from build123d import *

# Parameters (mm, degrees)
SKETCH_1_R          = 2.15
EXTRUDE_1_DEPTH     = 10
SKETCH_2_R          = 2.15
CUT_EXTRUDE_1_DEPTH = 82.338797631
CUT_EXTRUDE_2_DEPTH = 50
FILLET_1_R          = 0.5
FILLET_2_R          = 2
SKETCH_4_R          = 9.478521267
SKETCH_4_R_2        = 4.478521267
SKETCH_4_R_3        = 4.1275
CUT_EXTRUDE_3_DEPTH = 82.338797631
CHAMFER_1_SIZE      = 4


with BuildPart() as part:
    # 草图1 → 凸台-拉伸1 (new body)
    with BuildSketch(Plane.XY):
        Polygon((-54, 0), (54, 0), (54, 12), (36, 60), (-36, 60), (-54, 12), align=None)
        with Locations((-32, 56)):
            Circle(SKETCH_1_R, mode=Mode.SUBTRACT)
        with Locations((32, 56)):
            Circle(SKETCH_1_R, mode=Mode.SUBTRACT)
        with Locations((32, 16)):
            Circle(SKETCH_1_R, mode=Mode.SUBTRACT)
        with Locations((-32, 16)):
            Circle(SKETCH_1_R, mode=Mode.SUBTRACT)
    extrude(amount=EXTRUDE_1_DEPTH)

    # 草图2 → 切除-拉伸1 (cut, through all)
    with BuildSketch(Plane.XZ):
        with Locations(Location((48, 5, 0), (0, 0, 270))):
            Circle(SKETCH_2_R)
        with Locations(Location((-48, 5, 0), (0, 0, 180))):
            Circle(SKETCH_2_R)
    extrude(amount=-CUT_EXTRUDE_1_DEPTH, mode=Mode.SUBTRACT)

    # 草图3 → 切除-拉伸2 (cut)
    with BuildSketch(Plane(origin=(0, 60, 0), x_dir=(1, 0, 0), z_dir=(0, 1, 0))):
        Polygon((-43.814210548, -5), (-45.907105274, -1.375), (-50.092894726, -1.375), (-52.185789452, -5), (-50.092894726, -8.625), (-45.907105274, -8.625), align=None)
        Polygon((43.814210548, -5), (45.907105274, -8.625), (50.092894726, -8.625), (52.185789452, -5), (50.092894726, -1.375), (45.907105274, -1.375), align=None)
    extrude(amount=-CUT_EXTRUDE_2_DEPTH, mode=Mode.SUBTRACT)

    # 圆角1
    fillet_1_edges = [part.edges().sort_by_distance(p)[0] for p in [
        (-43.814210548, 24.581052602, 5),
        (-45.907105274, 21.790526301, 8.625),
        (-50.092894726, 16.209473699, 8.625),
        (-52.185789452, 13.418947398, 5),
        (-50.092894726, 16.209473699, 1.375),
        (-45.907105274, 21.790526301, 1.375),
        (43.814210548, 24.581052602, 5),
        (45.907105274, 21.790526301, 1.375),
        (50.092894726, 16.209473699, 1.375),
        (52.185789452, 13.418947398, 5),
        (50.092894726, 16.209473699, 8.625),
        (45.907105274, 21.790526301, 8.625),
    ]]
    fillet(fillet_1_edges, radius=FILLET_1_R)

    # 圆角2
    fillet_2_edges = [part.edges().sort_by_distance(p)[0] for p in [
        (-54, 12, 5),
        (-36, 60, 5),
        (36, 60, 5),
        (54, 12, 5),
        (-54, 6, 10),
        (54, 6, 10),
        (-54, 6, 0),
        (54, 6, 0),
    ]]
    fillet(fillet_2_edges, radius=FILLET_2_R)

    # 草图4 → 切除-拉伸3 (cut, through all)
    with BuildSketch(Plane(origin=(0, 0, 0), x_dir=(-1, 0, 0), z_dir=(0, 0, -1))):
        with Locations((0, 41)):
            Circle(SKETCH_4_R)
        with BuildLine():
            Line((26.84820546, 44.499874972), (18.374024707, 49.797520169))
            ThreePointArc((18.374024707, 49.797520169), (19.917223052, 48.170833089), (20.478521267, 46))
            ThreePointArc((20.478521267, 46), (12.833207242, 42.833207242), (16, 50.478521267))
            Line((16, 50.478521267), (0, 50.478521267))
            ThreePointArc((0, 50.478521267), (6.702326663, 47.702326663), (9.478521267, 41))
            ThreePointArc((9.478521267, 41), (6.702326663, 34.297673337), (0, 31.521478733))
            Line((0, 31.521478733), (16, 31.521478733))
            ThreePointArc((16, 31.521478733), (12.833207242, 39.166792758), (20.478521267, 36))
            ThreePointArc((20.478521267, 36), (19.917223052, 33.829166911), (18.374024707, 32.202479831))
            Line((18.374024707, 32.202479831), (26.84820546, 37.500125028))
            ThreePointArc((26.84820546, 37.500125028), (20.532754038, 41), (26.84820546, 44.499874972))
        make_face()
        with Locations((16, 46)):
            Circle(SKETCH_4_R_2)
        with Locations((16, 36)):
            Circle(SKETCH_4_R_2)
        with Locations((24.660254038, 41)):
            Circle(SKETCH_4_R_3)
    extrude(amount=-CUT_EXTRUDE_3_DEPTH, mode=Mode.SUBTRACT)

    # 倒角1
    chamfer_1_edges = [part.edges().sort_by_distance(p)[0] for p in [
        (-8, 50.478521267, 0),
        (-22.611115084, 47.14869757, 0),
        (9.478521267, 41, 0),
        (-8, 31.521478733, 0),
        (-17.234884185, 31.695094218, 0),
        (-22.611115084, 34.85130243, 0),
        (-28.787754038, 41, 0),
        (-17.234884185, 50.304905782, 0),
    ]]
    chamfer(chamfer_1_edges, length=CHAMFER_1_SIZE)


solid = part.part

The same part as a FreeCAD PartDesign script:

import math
import FreeCAD as App
import Part
import Sketcher

V = App.Vector
Q = App.Units.Quantity


def edges_at(feature, points):
    """Names of the edges that pass closest to the given points."""
    edges = feature.Shape.Edges
    near = lambda p: min(range(len(edges)), key=lambda i: edges[i].distToShape(Part.Vertex(*p))[0])
    return sorted({f"Edge{near(p) + 1}" for p in points})


def add_polygon(sketch, points):
    """Adds a closed chain of lines whose ends are joined by coincident constraints."""
    first, n = sketch.GeometryCount, len(points)
    for a, b in zip(points, points[1:] + points[:1]):
        sketch.addGeometry(Part.LineSegment(App.Vector(*a, 0), App.Vector(*b, 0)), False)
    for i in range(n):
        sketch.addConstraint(Sketcher.Constraint("Coincident", first + i, 2, first + (i + 1) % n, 1))

doc = App.newDocument("Part")
params = doc.addObject("Spreadsheet::Sheet", "Params")
for row, (alias, value) in enumerate([
    ("sketch1_diameter", "4.3 mm"),
    ("sketch1_width", "108 mm"),
    ("sketch1_width2", "72 mm"),
    ("sketch1_height", "12 mm"),
    ("pad1_length", "10 mm"),
    ("sketch2_diameter", "4.3 mm"),
    ("pocket2_length", "50 mm"),
    ("fillet_radius", "0.5 mm"),
    ("fillet2_radius", "2 mm"),
    ("sketch4_width", "16 mm"),
    ("chamfer_size", "4 mm"),
], start=1):
    params.set(f"A{row}", alias)
    params.set(f"B{row}", "=" + value)
    params.setAlias(f"B{row}", alias)

body = doc.addObject("PartDesign::Body", "Body")

# Sketch on XY plane
sketch1 = body.newObject("Sketcher::SketchObject", "Sketch")
sketch1.AttachmentSupport = (doc.getObject("XY_Plane"), [""])
sketch1.MapMode = "FlatFace"
add_polygon(sketch1, [(-54, 0), (54, 0), (54, 12), (36, 60), (-36, 60), (-54, 12)])  # lines 0-5
sketch1.addGeometry(Part.Circle(V(-32, 16, 0), V(0, 0, 1), 2.1), False)  # 6
sketch1.addGeometry(Part.Circle(V(32, 16, 0), V(0, 0, 1), 2.1), False)  # 7
sketch1.addGeometry(Part.Circle(V(-32, 56, 0), V(0, 0, 1), 2.1), False)  # 8
sketch1.addGeometry(Part.Circle(V(32, 56, 0), V(0, 0, 1), 2.1), False)  # 9
sketch1.addConstraint([
    Sketcher.Constraint("Horizontal", 0),
    Sketcher.Constraint("Vertical", 1),
    Sketcher.Constraint("Horizontal", 3),
    Sketcher.Constraint("Vertical", 5),
    Sketcher.Constraint("Equal", 6, 7),
    Sketcher.Constraint("Equal", 7, 8),
    Sketcher.Constraint("Equal", 8, 9),
    Sketcher.Constraint("Symmetric", 0, 2, 5, 2, -1, 1),
    Sketcher.Constraint("Symmetric", 6, 3, 7, 3, -2),
    Sketcher.Constraint("Symmetric", 8, 3, 9, 3, -2),
    Sketcher.Constraint("Horizontal", 1, 2, 4, 2),
    Sketcher.Constraint("Vertical", 6, 3, 8, 3),
    Sketcher.Constraint("Equal", 2, 4),
    Sketcher.Constraint("Diameter", 6, 4.3),
    Sketcher.Constraint("DistanceX", 0, 1, 0, 2, 108.0),
    Sketcher.Constraint("DistanceX", 3, 2, 3, 1, 72.0),
    Sketcher.Constraint("DistanceY", 1, 1, 1, 2, 12.0),
    Sketcher.Constraint("DistanceX", 6, 3, -1, 1, 32.0),
    Sketcher.Constraint("DistanceY", -1, 1, 6, 3, 16.0),
    Sketcher.Constraint("DistanceY", -1, 1, 8, 3, 56.0),
    Sketcher.Constraint("DistanceY", -1, 1, 2, 2, 60.0),
])
sketch1.setExpression("Constraints[19]", "Params.sketch1_diameter")
sketch1.setExpression("Constraints[20]", "Params.sketch1_width")
sketch1.setExpression("Constraints[21]", "Params.sketch1_width2")
sketch1.setExpression("Constraints[22]", "Params.sketch1_height")
pad1 = body.newObject("PartDesign::Pad", "Pad")
pad1.Profile = sketch1
pad1.setExpression("Length", "Params.pad1_length")

# Sketch on XZ plane
sketch2 = body.newObject("Sketcher::SketchObject", "Sketch001")
sketch2.AttachmentSupport = (doc.getObject("XZ_Plane"), [""])
sketch2.MapMode = "FlatFace"
sketch2.addGeometry([
    Part.Circle(V(48, 5, 0), V(0, 0, 1), 2.1),
    Part.Circle(V(-48, 5, 0), V(0, 0, 1), 2.1),
], False)
sketch2.addConstraint([
    Sketcher.Constraint("Equal", 0, 1),
    Sketcher.Constraint("Symmetric", 0, 3, 1, 3, -2),
    Sketcher.Constraint("Diameter", 0, 4.3),
    Sketcher.Constraint("DistanceX", -1, 1, 0, 3, 48.0),
    Sketcher.Constraint("DistanceY", -1, 1, 0, 3, 5.0),
])
sketch2.setExpression("Constraints[2]", "Params.sketch2_diameter")
pocket1 = body.newObject("PartDesign::Pocket", "Pocket")
pocket1.Profile = sketch2
pocket1.Type = "ThroughAll"

# Sketch on XZ plane
sketch3 = body.newObject("Sketcher::SketchObject", "Sketch002")
sketch3.AttachmentSupport = (doc.getObject("XZ_Plane"), [""])
sketch3.MapMode = "FlatFace"
sketch3.AttachmentOffset = App.Placement(V(0, 0, -60), App.Rotation())
add_polygon(sketch3, [(-43.8, 5), (-45.9, 1.4), (-50.1, 1.4), (-52.2, 5), (-50.1, 8.6), (-45.9, 8.6)])  # lines 0-5
add_polygon(sketch3, [(43.8, 5), (45.9, 8.6), (50.1, 8.6), (52.2, 5), (50.1, 1.4), (45.9, 1.4)])  # lines 6-11
sketch3.addConstraint([
    Sketcher.Constraint("Horizontal", 1),
    Sketcher.Constraint("Horizontal", 4),
    Sketcher.Constraint("Horizontal", 7),
    Sketcher.Constraint("Horizontal", 10),
    Sketcher.Constraint("Symmetric", 4, 2, 6, 2, -2),
    Sketcher.Constraint("Symmetric", 2, 2, 8, 2, -2),
    Sketcher.Constraint("Symmetric", 1, 2, 9, 2, -2),
    Sketcher.Constraint("Symmetric", 5, 2, 11, 2, -2),
    Sketcher.Constraint("Parallel", 0, 3),
    Sketcher.Constraint("Parallel", 2, 5),
    Sketcher.Constraint("Parallel", 3, 6),
    Sketcher.Constraint("Parallel", 5, 8),
    Sketcher.Constraint("Parallel", 8, 11),
    Sketcher.Constraint("Horizontal", 2, 2, 5, 2),
    Sketcher.Constraint("Vertical", 1, 2, 3, 2),
    Sketcher.Constraint("Angle", 0, Q("-120 deg")),
    Sketcher.Constraint("DistanceY", -1, 1, 2, 2, 5.0),
    Sketcher.Constraint("DistanceX", 3, 2, 6, 2, 96.0),
    Sketcher.Constraint("DistanceY", 1, 2, 3, 2, 7.25),
    Sketcher.Constraint("DistanceX", 1, 2, 1, 1, 4.185789),
])
pocket2 = body.newObject("PartDesign::Pocket", "Pocket001")
pocket2.Profile = sketch3
pocket2.setExpression("Length", "Params.pocket2_length")
pocket2.Reversed = True
doc.recompute()

fillet = body.newObject("PartDesign::Fillet", "Fillet")
fillet.Base = (pocket2, edges_at(pocket2, [
    (-43.814, 24.581, 5),
    (-45.907, 21.791, 8.625),
    (-50.093, 16.209, 8.625),
    (-52.186, 13.419, 5),
    (-50.093, 16.209, 1.375),
    (-45.907, 21.791, 1.375),
    (43.814, 24.581, 5),
    (45.907, 21.791, 1.375),
    (50.093, 16.209, 1.375),
    (52.186, 13.419, 5),
    (50.093, 16.209, 8.625),
    (45.907, 21.791, 8.625),
]))
fillet.setExpression("Radius", "Params.fillet_radius")
doc.recompute()

fillet2 = body.newObject("PartDesign::Fillet", "Fillet001")
fillet2.Base = (fillet, edges_at(fillet, [
    (-54, 12, 5),
    (-36, 60, 5),
    (36, 60, 5),
    (54, 12, 5),
    (-54, 6, 10),
    (54, 6, 10),
    (-54, 6, 0),
    (54, 6, 0),
]))
fillet2.setExpression("Radius", "Params.fillet2_radius")

# Sketch on XY plane
sketch4 = body.newObject("Sketcher::SketchObject", "Sketch003")
sketch4.AttachmentSupport = (doc.getObject("XY_Plane"), [""])
sketch4.MapMode = "FlatFace"
sketch4.addGeometry([
    Part.ArcOfCircle(Part.Circle(V(0, 41, 0), V(0, 0, 1), 9.5), math.radians(-90), math.radians(90)),  # 0
    Part.LineSegment(V(0, 31.5, 0), V(-16, 31.5, 0)),  # 1
    Part.ArcOfCircle(Part.Circle(V(-16, 36, 0), V(0, 0, 1), 4.5), math.radians(-122), math.radians(-90)),  # 2
    Part.LineSegment(V(-18.4, 32.2, 0), V(-26.8, 37.5, 0)),  # 3
    Part.ArcOfCircle(Part.Circle(V(-24.7, 41, 0), V(0, 0, 1), 4.1), math.radians(122), math.radians(238)),  # 4
    Part.LineSegment(V(-26.8, 44.5, 0), V(-18.4, 49.8, 0)),  # 5
    Part.ArcOfCircle(Part.Circle(V(-16, 46, 0), V(0, 0, 1), 4.5), math.radians(90), math.radians(122)),  # 6
    Part.LineSegment(V(-16, 50.5, 0), V(0, 50.5, 0)),  # 7
], False)
sketch4.addConstraint([
    Sketcher.Constraint("Tangent", 0, 1, 1, 1),
    Sketcher.Constraint("Tangent", 1, 2, 2, 2),
    Sketcher.Constraint("Tangent", 2, 1, 3, 1),
    Sketcher.Constraint("Tangent", 3, 2, 4, 2),
    Sketcher.Constraint("Tangent", 4, 1, 5, 1),
    Sketcher.Constraint("Tangent", 5, 2, 6, 2),
    Sketcher.Constraint("Tangent", 6, 1, 7, 1),
    Sketcher.Constraint("Tangent", 7, 2, 0, 2),
    Sketcher.Constraint("Horizontal", 1),
    Sketcher.Constraint("Horizontal", 7),
    Sketcher.Constraint("Equal", 2, 6),
    Sketcher.Constraint("PointOnObject", 0, 3, -2),
    Sketcher.Constraint("Horizontal", 0, 3, 4, 3),
    Sketcher.Constraint("Vertical", 2, 3, 6, 3),
    Sketcher.Constraint("DistanceX", 1, 2, 1, 1, 16.0),
    Sketcher.Constraint("DistanceY", -1, 1, 0, 3, 41.0),
    Sketcher.Constraint("DistanceY", -1, 1, 2, 3, 36.0),
    Sketcher.Constraint("Radius", 4, 4.1275),
    Sketcher.Constraint("Radius", 0, 9.478521),
    Sketcher.Constraint("DistanceY", 1, 2, 2, 1, 0.681001),
])
sketch4.setExpression("Constraints[14]", "Params.sketch4_width")
pocket3 = body.newObject("PartDesign::Pocket", "Pocket002")
pocket3.Profile = sketch4
pocket3.Type = "ThroughAll"
pocket3.Reversed = True
doc.recompute()

chamfer = body.newObject("PartDesign::Chamfer", "Chamfer")
chamfer.Base = (pocket3, edges_at(pocket3, [
    (-8, 50.479, 0),
    (-22.611, 47.149, 0),
    (9.479, 41, 0),
    (-8, 31.521, 0),
    (-17.235, 31.695, 0),
    (-22.611, 34.851, 0),
    (-28.788, 41, 0),
    (-17.235, 50.305, 0),
]))
chamfer.setExpression("Size", "Params.chamfer_size")

doc.recompute()
